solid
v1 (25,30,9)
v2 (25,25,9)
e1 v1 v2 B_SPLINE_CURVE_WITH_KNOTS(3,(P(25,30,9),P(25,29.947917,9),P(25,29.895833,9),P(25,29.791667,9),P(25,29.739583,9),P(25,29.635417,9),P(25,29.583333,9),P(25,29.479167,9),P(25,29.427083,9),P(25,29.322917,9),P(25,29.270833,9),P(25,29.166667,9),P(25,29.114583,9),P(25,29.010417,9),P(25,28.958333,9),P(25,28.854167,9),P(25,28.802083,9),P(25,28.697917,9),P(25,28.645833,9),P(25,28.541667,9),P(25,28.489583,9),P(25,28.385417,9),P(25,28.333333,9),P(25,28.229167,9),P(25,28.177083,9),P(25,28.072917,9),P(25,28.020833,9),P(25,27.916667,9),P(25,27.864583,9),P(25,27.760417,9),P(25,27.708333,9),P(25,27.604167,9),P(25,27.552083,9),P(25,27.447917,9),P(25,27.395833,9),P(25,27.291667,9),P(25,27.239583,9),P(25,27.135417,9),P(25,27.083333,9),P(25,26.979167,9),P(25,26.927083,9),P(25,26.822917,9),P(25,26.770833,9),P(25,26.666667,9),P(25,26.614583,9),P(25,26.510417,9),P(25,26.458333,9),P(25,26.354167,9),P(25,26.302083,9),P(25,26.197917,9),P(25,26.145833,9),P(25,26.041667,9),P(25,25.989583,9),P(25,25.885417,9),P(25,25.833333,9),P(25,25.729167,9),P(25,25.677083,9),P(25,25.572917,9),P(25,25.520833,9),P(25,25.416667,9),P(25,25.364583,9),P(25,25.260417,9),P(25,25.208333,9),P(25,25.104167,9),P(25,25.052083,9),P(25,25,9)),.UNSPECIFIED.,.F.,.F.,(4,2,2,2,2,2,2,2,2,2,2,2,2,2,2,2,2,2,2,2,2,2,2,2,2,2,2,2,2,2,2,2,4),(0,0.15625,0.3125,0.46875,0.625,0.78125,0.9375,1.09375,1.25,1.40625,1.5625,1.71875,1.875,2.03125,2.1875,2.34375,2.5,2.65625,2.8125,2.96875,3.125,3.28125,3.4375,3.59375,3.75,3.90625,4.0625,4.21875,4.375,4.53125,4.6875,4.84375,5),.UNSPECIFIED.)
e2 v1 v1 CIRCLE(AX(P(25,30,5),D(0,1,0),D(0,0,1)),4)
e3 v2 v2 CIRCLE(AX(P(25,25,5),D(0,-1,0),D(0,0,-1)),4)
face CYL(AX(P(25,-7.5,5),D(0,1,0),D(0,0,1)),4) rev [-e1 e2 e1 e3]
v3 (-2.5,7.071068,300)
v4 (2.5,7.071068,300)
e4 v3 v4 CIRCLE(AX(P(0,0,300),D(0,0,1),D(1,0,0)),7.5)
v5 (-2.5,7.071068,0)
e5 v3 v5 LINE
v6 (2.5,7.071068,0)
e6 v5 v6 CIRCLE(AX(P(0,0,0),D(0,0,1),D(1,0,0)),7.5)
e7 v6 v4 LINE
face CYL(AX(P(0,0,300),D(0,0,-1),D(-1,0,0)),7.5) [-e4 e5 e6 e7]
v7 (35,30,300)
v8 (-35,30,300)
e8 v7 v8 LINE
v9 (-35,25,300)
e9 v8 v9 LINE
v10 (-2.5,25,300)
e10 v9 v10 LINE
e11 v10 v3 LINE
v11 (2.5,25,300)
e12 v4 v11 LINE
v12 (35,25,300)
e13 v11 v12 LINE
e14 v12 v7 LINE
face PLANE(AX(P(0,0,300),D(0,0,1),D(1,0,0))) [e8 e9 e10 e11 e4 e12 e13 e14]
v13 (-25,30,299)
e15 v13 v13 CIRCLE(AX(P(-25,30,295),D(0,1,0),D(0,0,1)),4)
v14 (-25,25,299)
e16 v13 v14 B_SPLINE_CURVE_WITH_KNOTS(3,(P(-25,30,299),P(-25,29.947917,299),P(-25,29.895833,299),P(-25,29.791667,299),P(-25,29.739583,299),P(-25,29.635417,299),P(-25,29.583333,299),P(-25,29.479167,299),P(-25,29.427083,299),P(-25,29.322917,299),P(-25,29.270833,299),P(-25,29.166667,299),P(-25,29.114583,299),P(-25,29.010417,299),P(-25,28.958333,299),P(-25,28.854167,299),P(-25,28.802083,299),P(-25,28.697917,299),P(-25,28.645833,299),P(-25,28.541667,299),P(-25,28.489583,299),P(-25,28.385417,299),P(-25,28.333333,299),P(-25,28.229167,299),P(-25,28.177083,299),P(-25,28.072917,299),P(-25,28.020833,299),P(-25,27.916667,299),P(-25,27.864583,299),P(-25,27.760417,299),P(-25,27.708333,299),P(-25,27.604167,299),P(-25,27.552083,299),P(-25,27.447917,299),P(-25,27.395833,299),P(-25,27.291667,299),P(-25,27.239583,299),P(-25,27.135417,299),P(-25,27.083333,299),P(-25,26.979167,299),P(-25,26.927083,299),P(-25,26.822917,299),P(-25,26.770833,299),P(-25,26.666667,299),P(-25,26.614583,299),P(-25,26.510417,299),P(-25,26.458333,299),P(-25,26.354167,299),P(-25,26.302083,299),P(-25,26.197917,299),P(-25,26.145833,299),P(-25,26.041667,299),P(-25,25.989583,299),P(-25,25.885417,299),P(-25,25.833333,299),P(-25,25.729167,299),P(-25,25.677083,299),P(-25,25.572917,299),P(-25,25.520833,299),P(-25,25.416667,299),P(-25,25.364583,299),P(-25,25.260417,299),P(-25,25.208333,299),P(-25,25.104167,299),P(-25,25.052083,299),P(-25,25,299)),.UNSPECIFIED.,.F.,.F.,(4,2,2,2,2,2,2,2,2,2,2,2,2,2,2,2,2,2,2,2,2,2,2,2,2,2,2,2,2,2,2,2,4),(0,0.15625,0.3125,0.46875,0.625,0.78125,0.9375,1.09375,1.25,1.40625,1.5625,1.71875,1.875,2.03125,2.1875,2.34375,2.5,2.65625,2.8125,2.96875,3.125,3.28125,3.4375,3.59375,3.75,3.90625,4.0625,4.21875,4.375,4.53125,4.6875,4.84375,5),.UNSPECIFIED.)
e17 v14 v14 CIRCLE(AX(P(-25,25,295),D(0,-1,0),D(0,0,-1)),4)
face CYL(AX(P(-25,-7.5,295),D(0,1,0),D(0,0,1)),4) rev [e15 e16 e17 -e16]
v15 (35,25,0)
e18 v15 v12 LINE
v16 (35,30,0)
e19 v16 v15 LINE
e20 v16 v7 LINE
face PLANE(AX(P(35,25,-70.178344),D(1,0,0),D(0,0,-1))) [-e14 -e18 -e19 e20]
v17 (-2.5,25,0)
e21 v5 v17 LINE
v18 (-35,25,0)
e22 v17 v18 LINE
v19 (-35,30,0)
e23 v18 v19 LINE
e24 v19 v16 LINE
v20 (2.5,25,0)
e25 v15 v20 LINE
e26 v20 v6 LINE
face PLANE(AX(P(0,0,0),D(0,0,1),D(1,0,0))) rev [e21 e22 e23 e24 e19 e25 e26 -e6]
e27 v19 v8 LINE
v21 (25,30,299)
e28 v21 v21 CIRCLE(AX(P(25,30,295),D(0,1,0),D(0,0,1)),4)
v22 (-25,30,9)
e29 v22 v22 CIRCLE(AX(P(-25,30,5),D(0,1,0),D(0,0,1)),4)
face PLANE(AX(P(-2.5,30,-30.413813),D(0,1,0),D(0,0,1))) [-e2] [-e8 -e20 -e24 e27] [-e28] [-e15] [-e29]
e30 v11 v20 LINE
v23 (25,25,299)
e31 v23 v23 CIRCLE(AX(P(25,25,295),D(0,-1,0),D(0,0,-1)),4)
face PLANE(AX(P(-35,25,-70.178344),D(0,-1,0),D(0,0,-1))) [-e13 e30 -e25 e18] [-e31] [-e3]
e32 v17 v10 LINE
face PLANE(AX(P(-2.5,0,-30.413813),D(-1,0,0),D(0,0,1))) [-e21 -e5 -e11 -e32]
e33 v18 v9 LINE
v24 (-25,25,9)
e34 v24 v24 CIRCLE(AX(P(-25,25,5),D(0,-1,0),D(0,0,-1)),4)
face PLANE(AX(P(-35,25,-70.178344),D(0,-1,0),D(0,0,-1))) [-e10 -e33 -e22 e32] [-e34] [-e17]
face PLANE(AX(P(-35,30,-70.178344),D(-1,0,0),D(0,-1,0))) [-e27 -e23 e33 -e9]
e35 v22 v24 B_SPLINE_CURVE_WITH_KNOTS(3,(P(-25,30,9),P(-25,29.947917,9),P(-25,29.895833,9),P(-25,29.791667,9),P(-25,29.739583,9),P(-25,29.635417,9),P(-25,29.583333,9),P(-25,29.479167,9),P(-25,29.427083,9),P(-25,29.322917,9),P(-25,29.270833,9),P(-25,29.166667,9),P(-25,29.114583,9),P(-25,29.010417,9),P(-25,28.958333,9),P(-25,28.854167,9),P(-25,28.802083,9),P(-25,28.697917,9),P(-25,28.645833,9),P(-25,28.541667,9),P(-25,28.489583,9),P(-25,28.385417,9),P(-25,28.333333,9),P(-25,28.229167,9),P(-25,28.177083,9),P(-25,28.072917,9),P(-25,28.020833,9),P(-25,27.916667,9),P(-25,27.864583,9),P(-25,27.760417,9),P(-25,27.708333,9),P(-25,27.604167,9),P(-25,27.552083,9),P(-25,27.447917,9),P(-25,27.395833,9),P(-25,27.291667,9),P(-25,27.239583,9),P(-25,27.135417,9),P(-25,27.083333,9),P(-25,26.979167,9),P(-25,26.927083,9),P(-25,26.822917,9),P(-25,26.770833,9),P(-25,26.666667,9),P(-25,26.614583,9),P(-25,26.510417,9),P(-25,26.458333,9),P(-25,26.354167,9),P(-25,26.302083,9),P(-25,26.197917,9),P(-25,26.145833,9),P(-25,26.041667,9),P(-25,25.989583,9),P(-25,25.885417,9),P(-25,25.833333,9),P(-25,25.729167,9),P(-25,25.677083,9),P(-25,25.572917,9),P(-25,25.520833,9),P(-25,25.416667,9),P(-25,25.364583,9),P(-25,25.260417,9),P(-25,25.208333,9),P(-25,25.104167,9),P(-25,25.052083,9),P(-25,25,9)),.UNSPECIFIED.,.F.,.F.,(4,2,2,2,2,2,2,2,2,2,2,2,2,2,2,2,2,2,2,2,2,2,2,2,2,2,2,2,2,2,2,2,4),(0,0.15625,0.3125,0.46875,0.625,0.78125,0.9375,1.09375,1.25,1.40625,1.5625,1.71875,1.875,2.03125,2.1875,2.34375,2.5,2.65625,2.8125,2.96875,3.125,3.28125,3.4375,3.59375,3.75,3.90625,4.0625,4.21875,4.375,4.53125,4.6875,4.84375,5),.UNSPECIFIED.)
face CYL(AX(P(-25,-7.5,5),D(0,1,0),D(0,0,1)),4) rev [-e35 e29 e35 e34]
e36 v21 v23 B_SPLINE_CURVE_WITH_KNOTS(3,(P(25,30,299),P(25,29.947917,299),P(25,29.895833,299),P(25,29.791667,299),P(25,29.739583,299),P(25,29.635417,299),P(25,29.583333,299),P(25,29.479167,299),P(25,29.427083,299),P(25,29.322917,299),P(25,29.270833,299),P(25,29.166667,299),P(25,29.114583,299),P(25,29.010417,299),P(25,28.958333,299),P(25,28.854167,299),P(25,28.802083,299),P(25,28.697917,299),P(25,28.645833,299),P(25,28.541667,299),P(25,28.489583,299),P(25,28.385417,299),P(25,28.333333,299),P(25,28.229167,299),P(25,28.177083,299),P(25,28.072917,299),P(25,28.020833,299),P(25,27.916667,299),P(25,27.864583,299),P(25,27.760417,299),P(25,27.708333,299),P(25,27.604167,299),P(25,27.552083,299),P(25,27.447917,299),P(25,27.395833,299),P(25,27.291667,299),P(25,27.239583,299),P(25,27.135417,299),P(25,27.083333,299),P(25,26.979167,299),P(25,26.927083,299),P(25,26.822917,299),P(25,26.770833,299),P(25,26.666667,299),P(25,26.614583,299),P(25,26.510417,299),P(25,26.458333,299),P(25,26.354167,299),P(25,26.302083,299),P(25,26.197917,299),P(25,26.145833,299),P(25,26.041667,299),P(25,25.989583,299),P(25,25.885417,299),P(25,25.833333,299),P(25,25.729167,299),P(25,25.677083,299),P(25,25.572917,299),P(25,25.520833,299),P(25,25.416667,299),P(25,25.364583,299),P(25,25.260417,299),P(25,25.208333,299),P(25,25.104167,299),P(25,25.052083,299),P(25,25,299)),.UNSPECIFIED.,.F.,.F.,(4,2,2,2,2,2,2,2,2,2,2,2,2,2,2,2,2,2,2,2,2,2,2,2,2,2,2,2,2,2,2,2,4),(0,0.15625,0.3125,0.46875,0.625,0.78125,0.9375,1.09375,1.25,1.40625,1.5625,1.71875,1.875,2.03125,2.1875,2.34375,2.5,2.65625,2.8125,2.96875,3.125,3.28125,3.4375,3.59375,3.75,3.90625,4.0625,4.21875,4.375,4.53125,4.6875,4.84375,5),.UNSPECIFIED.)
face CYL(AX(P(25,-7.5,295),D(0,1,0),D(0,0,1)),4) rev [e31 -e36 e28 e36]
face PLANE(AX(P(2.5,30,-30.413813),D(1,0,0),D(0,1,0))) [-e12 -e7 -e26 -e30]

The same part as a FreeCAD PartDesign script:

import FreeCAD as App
import Part
import Sketcher
Q = App.Units.Quantity

doc = App.newDocument("Part")
params = doc.addObject("Spreadsheet::Sheet", "Params")
for row, (alias, value) in enumerate([
    ("sketch1_diameter", "15 mm"),
    ("pad1_length", "300 mm"),
    ("sketch2_width", "5 mm"),
    ("sketch2_height", "30 mm"),
    ("pad2_length", "300 mm"),
    ("sketch3_width", "70 mm"),
    ("sketch3_height", "5 mm"),
    ("pad3_length", "300 mm"),
    ("sketch4_diameter", "8 mm"),
], start=1):
    params.set(f"A{row}", alias)
    params.set(f"B{row}", "=" + value)
    params.setAlias(f"B{row}", alias)

body = doc.addObject("PartDesign::Body", "Body")

# Sketch on XY plane
sketch1 = doc.addObject("Sketcher::SketchObject", "Sketch")
body.addObject(sketch1)
sketch1.AttachmentSupport = (doc.XY_Plane, [""])
sketch1.MapMode = "FlatFace"
sketch1.addGeometry(Part.Circle(App.Vector(0, 0, 0), App.Vector(0, 0, 1), 8), False)
sketch1.addConstraint([
    Sketcher.Constraint("Coincident", 0, 3, -1, 1),
    Sketcher.Constraint("Diameter", 0, Q("15 mm")),
])
sketch1.setExpression("Constraints[1]", "Params.sketch1_diameter")
pad1 = doc.addObject("PartDesign::Pad", "Pad")
body.addObject(pad1)
pad1.Profile = sketch1
pad1.setExpression("Length", "Params.pad1_length")

# Sketch on XY plane
sketch2 = doc.addObject("Sketcher::SketchObject", "Sketch001")
body.addObject(sketch2)
sketch2.AttachmentSupport = (doc.XY_Plane, [""])
sketch2.MapMode = "FlatFace"
sketch2.AttachmentOffset = App.Placement(App.Vector(0, 0, 300), App.Rotation())
sketch2.addGeometry([
    Part.LineSegment(App.Vector(-2, 30, 0), App.Vector(-2, 0, 0)),
    Part.LineSegment(App.Vector(-2, 0, 0), App.Vector(2, 0, 0)),
    Part.LineSegment(App.Vector(2, 0, 0), App.Vector(2, 30, 0)),
    Part.LineSegment(App.Vector(2, 30, 0), App.Vector(-2, 30, 0)),
], False)
sketch2.addConstraint([
    Sketcher.Constraint("Coincident", 0, 2, 1, 1),
    Sketcher.Constraint("Coincident", 1, 2, 2, 1),
    Sketcher.Constraint("Coincident", 2, 2, 3, 1),
    Sketcher.Constraint("Coincident", 3, 2, 0, 1),
    Sketcher.Constraint("Vertical", 0),
    Sketcher.Constraint("Horizontal", 1),
    Sketcher.Constraint("Vertical", 2),
    Sketcher.Constraint("Horizontal", 3),
    Sketcher.Constraint("Symmetric", 0, 2, 1, 2, -1, 1),
    Sketcher.Constraint("DistanceX", 1, 1, 1, 2, Q("5 mm")),
    Sketcher.Constraint("DistanceY", 0, 2, 0, 1, Q("30 mm")),
])
sketch2.setExpression("Constraints[9]", "Params.sketch2_width")
sketch2.setExpression("Constraints[10]", "Params.sketch2_height")
pad2 = doc.addObject("PartDesign::Pad", "Pad001")
body.addObject(pad2)
pad2.Profile = sketch2
pad2.setExpression("Length", "Params.pad2_length")
pad2.Reversed = True

# Sketch on XY plane
sketch3 = doc.addObject("Sketcher::SketchObject", "Sketch002")
body.addObject(sketch3)
sketch3.AttachmentSupport = (doc.XY_Plane, [""])
sketch3.MapMode = "FlatFace"
sketch3.AttachmentOffset = App.Placement(App.Vector(0, 0, 300), App.Rotation())
sketch3.addGeometry([
    Part.LineSegment(App.Vector(-35, 30, 0), App.Vector(-35, 25, 0)),
    Part.LineSegment(App.Vector(-35, 25, 0), App.Vector(35, 25, 0)),
    Part.LineSegment(App.Vector(35, 25, 0), App.Vector(35, 30, 0)),
    Part.LineSegment(App.Vector(35, 30, 0), App.Vector(-35, 30, 0)),
], False)
sketch3.addConstraint([
    Sketcher.Constraint("Coincident", 0, 2, 1, 1),
    Sketcher.Constraint("Coincident", 1, 2, 2, 1),
    Sketcher.Constraint("Coincident", 2, 2, 3, 1),
    Sketcher.Constraint("Coincident", 3, 2, 0, 1),
    Sketcher.Constraint("Vertical", 0),
    Sketcher.Constraint("Horizontal", 1),
    Sketcher.Constraint("Vertical", 2),
    Sketcher.Constraint("Horizontal", 3),
    Sketcher.Constraint("DistanceX", 1, 1, 1, 2, Q("70 mm")),
    Sketcher.Constraint("DistanceY", 0, 2, 0, 1, Q("5 mm")),
    Sketcher.Constraint("DistanceX", 0, 2, -1, 1, Q("35 mm")),
    Sketcher.Constraint("DistanceY", -1, 1, 0, 2, Q("25 mm")),
])
sketch3.setExpression("Constraints[8]", "Params.sketch3_width")
sketch3.setExpression("Constraints[9]", "Params.sketch3_height")
pad3 = doc.addObject("PartDesign::Pad", "Pad002")
body.addObject(pad3)
pad3.Profile = sketch3
pad3.setExpression("Length", "Params.pad3_length")
pad3.Reversed = True

# Sketch on XZ plane
sketch4 = doc.addObject("Sketcher::SketchObject", "Sketch003")
body.addObject(sketch4)
sketch4.AttachmentSupport = (doc.XZ_Plane, [""])
sketch4.MapMode = "FlatFace"
sketch4.AttachmentOffset = App.Placement(App.Vector(0, 0, -30), App.Rotation())
sketch4.addGeometry([
    Part.Circle(App.Vector(-25, 5, 0), App.Vector(0, 0, 1), 4),
    Part.Circle(App.Vector(25, 5, 0), App.Vector(0, 0, 1), 4),
    Part.Circle(App.Vector(25, 295, 0), App.Vector(0, 0, 1), 4),
    Part.Circle(App.Vector(-25, 295, 0), App.Vector(0, 0, 1), 4),
], False)
sketch4.addConstraint([
    Sketcher.Constraint("Equal", 0, 1),
    Sketcher.Constraint("Equal", 1, 2),
    Sketcher.Constraint("Equal", 2, 3),
    Sketcher.Constraint("Symmetric", 0, 3, 1, 3, -2),
    Sketcher.Constraint("Symmetric", 2, 3, 3, 3, -2),
    Sketcher.Constraint("Vertical", 1, 3, 2, 3),
    Sketcher.Constraint("Diameter", 0, Q("8 mm")),
    Sketcher.Constraint("DistanceX", 0, 3, -1, 1, Q("25 mm")),
    Sketcher.Constraint("DistanceY", -1, 1, 0, 3, Q("5 mm")),
    Sketcher.Constraint("DistanceY", -1, 1, 2, 3, Q("295 mm")),
])
sketch4.setExpression("Constraints[6]", "Params.sketch4_diameter")
pocket1 = doc.addObject("PartDesign::Pocket", "Pocket")
body.addObject(pocket1)
pocket1.Profile = sketch4
pocket1.Type = "ThroughAll"
pocket1.Midplane = True

doc.recompute()
